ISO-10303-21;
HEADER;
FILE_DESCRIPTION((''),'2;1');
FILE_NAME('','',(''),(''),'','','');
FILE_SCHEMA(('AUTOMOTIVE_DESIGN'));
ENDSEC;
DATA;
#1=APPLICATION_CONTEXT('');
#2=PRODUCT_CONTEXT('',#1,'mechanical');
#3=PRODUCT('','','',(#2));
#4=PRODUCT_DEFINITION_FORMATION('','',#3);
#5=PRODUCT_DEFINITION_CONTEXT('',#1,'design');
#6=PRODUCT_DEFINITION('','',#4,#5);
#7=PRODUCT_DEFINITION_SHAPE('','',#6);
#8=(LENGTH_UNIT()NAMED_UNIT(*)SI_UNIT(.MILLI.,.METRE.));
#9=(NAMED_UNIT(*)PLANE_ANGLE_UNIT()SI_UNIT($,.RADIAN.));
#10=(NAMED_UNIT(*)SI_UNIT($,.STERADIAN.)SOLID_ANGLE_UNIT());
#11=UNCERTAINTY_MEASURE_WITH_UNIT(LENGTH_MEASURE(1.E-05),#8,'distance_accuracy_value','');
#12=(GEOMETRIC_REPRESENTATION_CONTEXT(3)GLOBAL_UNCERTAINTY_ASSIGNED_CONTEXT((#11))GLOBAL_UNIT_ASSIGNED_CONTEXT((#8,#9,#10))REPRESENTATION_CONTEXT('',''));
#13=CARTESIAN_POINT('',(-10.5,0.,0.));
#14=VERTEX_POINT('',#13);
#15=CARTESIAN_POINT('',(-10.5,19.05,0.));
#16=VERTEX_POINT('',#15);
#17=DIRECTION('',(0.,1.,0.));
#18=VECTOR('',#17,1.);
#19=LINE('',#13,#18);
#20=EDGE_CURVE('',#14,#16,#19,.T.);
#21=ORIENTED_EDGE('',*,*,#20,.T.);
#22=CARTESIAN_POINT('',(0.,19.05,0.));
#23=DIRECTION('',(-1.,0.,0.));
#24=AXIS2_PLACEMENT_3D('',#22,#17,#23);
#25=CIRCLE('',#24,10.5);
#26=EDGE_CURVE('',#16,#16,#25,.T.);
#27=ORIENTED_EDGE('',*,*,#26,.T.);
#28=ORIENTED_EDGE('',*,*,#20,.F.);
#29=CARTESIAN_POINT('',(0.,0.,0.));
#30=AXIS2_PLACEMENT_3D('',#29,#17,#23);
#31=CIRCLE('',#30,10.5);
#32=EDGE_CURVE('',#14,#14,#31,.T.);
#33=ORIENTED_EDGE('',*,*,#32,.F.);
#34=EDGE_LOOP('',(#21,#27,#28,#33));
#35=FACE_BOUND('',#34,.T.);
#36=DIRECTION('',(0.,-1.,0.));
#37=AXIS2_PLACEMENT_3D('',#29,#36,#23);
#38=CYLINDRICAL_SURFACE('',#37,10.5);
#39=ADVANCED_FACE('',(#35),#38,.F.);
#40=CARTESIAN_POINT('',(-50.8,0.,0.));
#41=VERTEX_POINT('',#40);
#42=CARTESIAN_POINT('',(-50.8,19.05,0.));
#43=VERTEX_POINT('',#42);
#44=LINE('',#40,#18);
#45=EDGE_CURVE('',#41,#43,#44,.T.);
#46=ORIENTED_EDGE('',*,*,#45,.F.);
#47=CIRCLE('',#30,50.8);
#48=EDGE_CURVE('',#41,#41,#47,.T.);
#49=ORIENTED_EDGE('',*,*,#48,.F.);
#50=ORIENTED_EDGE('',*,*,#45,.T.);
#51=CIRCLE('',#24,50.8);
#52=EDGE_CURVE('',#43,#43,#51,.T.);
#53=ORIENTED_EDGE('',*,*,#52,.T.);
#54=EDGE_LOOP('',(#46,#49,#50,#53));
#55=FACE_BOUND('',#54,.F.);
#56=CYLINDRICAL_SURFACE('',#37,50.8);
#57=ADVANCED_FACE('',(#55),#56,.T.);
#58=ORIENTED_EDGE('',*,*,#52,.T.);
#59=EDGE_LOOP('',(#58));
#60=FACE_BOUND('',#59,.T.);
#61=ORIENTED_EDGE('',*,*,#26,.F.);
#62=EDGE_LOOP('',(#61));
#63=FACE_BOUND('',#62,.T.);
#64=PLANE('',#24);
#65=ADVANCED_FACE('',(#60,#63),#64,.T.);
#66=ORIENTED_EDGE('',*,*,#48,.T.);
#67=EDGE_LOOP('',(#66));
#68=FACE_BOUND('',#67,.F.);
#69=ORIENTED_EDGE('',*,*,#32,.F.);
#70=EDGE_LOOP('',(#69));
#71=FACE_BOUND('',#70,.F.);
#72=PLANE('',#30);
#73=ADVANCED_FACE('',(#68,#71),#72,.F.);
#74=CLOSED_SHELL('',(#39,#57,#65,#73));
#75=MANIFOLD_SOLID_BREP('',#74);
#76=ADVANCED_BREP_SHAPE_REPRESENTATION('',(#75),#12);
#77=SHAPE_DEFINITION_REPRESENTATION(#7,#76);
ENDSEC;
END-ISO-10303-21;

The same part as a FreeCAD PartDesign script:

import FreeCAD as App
import Part
import Sketcher

V = App.Vector
Q = App.Units.Quantity

doc = App.newDocument("Part")
body = doc.addObject("PartDesign::Body", "Body")

sketch1 = body.newObject("Sketcher::SketchObject", "Sketch")
sketch1.AttachmentSupport = (doc.getObject("XZ_Plane"), [""])
sketch1.MapMode = "FlatFace"
sketch1.addGeometry(Part.Circle(V(0, 0, 0), V(0, 0, 1), 51), False)
sketch1.addGeometry(Part.Circle(V(0, 0, 0), V(0, 0, 1), 10), False)
sketch1.addConstraint(Sketcher.Constraint("Coincident", 0, 3, -1, 1))
sketch1.addConstraint(Sketcher.Constraint("Coincident", 1, 3, -1, 1))
sketch1.addConstraint(Sketcher.Constraint("Diameter", 0, Q("4 in")))
sketch1.addConstraint(Sketcher.Constraint("Diameter", 1, 21.0))
pad1 = body.newObject("PartDesign::Pad", "Pad")
pad1.Profile = sketch1
pad1.Length = Q("0.75 in")
pad1.Reversed = True

doc.recompute()
